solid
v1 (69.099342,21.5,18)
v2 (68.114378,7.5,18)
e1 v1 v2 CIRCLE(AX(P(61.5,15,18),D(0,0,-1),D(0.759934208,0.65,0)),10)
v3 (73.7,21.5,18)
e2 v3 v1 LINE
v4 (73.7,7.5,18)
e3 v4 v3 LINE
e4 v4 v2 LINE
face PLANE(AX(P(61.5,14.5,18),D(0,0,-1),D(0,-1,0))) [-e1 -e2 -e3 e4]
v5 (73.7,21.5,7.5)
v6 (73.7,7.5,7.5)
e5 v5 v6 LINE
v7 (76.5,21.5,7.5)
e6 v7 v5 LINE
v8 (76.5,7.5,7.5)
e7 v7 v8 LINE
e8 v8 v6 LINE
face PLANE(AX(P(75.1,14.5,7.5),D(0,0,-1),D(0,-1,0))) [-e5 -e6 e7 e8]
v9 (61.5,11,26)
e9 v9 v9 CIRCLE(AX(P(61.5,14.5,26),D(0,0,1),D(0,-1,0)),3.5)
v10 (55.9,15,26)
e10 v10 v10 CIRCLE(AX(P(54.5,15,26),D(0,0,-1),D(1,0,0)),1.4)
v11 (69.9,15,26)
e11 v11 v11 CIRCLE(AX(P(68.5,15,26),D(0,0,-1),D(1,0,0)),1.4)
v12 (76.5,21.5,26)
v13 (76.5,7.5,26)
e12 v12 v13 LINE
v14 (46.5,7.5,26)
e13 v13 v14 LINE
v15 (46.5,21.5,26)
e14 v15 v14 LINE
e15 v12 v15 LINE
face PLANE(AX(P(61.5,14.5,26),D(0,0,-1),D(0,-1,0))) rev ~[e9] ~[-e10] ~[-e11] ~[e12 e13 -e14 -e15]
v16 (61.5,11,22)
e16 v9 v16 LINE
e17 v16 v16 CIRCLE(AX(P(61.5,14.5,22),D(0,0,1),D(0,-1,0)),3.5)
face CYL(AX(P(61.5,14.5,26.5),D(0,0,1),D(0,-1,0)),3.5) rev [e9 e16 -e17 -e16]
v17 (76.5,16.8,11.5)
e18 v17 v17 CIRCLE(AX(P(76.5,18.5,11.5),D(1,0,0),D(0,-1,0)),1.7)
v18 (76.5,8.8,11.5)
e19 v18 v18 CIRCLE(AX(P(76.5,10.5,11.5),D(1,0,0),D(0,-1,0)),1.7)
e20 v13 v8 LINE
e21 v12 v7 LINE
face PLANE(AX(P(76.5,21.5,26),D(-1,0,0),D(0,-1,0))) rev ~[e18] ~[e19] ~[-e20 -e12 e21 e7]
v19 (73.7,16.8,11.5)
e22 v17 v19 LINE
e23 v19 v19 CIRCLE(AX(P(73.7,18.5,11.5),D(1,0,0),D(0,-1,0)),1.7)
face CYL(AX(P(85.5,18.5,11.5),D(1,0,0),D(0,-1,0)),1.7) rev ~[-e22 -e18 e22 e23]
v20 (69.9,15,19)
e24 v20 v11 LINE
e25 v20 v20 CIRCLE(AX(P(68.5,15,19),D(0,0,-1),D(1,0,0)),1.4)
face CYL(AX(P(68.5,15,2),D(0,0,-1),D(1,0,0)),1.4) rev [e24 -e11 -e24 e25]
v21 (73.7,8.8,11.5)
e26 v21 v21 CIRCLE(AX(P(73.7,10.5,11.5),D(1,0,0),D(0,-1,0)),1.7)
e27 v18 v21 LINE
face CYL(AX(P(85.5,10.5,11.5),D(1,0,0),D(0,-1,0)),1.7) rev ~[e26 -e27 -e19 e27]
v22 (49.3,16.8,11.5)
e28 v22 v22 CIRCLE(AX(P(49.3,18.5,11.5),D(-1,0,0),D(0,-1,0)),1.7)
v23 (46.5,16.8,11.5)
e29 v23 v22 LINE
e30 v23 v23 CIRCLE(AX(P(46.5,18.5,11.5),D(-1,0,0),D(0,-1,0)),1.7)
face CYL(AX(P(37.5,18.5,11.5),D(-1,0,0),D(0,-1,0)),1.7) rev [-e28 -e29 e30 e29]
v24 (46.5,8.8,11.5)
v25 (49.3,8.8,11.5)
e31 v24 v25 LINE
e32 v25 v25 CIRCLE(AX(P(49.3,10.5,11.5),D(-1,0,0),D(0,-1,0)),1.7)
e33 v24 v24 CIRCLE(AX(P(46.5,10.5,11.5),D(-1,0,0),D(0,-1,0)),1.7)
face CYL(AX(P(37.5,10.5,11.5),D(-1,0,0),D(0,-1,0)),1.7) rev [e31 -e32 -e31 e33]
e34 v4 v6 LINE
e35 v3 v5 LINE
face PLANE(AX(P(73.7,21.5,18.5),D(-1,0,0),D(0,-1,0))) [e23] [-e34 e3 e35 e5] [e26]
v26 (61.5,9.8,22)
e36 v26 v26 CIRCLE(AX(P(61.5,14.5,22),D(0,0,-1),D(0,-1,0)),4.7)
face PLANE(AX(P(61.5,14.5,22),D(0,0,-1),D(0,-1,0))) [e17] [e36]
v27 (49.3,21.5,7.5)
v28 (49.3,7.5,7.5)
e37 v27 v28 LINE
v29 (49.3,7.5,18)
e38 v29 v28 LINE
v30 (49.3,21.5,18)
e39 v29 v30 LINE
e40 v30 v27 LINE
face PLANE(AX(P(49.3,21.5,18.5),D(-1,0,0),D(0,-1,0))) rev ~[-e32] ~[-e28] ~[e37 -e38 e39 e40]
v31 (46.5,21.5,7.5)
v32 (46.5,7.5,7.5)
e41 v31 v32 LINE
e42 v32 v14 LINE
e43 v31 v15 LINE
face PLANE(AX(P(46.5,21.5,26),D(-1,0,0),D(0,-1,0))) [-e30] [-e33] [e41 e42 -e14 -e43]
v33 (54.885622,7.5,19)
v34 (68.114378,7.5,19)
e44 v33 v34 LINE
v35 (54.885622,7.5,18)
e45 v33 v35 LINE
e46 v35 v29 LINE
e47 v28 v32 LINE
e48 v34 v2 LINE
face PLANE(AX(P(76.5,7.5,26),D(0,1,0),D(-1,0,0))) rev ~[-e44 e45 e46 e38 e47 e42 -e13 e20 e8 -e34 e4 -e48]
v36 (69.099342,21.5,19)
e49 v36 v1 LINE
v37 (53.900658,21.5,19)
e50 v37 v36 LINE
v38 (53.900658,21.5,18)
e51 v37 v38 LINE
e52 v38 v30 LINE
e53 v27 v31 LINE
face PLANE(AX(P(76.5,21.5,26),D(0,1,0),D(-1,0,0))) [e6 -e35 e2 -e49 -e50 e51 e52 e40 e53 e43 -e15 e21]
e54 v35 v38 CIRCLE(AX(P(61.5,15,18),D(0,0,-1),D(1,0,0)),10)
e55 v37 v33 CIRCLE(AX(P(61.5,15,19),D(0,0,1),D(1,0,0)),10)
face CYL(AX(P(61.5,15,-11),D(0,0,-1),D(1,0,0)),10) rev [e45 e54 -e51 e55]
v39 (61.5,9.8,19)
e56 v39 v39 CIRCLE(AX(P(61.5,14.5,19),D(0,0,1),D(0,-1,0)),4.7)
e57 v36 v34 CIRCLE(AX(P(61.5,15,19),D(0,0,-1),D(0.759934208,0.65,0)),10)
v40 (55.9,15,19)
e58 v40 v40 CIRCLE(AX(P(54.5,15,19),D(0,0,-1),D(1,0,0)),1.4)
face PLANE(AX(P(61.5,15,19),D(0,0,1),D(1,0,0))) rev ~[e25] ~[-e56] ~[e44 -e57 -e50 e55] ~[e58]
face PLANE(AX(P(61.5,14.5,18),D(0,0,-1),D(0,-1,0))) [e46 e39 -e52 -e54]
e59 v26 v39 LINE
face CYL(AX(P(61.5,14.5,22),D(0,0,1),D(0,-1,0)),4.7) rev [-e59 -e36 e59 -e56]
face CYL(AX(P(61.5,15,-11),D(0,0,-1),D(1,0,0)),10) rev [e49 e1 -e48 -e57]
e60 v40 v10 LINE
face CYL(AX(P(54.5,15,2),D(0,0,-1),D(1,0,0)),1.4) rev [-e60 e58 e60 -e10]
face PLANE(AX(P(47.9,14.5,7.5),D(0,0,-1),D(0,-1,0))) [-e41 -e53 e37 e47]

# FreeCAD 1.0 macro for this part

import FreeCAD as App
import Part
import Sketcher

doc = App.newDocument("Part")
body = doc.addObject("PartDesign::Body", "Body")

sketch1 = doc.addObject("Sketcher::SketchObject", "Sketch")
body.addObject(sketch1)
sketch1.AttachmentSupport = (doc.XY_Plane, [""])
sketch1.MapMode = "FlatFace"
sketch1.AttachmentOffset = App.Placement(App.Vector(0, 0, -11), App.Rotation())
sketch1.addGeometry(Part.Circle(App.Vector(61.5, 15, 0), App.Vector(0, 0, 1), 10), False)
sketch1.addConstraint(Sketcher.Constraint("Diameter", 0, 20.0))
sketch1.addConstraint(Sketcher.Constraint("DistanceY", -1, 1, 0, 3, 15.0))
sketch1.addConstraint(Sketcher.Constraint("DistanceX", -1, 1, 0, 3, 61.5))
pad1 = doc.addObject("PartDesign::Pad", "Pad")
body.addObject(pad1)
pad1.Profile = sketch1
pad1.Length = 30
body2 = doc.addObject("PartDesign::Body", "Body001")

sketch2 = doc.addObject("Sketcher::SketchObject", "Sketch001")
body2.addObject(sketch2)
sketch2.AttachmentSupport = (doc.getObject("XY_Plane001"), [""])
sketch2.MapMode = "FlatFace"
sketch2.AttachmentOffset = App.Placement(App.Vector(0, 0, -9), App.Rotation())
sketch2.addGeometry(Part.Circle(App.Vector(0, 0, 0), App.Vector(0, 0, 1), 3.5), False)
sketch2.addConstraint(Sketcher.Constraint("Coincident", 0, 3, -1, 1))
sketch2.addConstraint(Sketcher.Constraint("Diameter", 0, 7.0))
pad2 = doc.addObject("PartDesign::Pad", "Pad001")
body2.addObject(pad2)
pad2.Profile = sketch2
pad2.Length = 30
body3 = doc.addObject("PartDesign::Body", "Body002")

sketch3 = doc.addObject("Sketcher::SketchObject", "Sketch002")
body3.addObject(sketch3)
sketch3.AttachmentSupport = (doc.getObject("XY_Plane002"), [""])
sketch3.MapMode = "FlatFace"
sketch3.AttachmentOffset = App.Placement(App.Vector(0, 0, -4.5), App.Rotation())
sketch3.addGeometry(Part.Circle(App.Vector(0, 0, 0), App.Vector(0, 0, 1), 4.7), False)
sketch3.addConstraint(Sketcher.Constraint("Coincident", 0, 3, -1, 1))
sketch3.addConstraint(Sketcher.Constraint("Diameter", 0, 9.4))
pad3 = doc.addObject("PartDesign::Pad", "Pad002")
body3.addObject(pad3)
pad3.Profile = sketch3
pad3.Length = 30
doc.recompute()

boolean = doc.addObject("PartDesign::Boolean", "Boolean")
body3.addObject(boolean)
boolean.Type = "Fuse"
boolean.addObjects([body2])
body4 = doc.addObject("PartDesign::Body", "Body003")
doc.recompute()

body3.Placement = App.Placement(App.Vector(0, 0, 0), App.Rotation(App.Vector(1, 0, 0), 180))
boolean2 = doc.addObject("PartDesign::Boolean", "Boolean001")
body4.addObject(boolean2)
boolean2.Type = "Fuse"
boolean2.addObjects([body3])
body5 = doc.addObject("PartDesign::Body", "Body004")
doc.recompute()

body4.Placement = App.Placement(App.Vector(61.5, 14.5, 17.5), App.Rotation(App.Vector(0, 0, 1), 270))
boolean3 = doc.addObject("PartDesign::Boolean", "Boolean002")
body5.addObject(boolean3)
boolean3.Type = "Fuse"
boolean3.addObjects([body4])
body6 = doc.addObject("PartDesign::Body", "Body005")

sketch4 = doc.addObject("Sketcher::SketchObject", "Sketch003")
body6.addObject(sketch4)
sketch4.AttachmentSupport = (doc.getObject("XY_Plane005"), [""])
sketch4.MapMode = "FlatFace"
sketch4.AttachmentOffset = App.Placement(App.Vector(0, 0, 2), App.Rotation())
sketch4.addGeometry(Part.Circle(App.Vector(68.5, 15, 0), App.Vector(0, 0, 1), 1.4), False)
sketch4.addConstraint(Sketcher.Constraint("Diameter", 0, 2.8))
sketch4.addConstraint(Sketcher.Constraint("DistanceY", -1, 1, 0, 3, 15.0))
sketch4.addConstraint(Sketcher.Constraint("DistanceX", -1, 1, 0, 3, 68.5))
pad4 = doc.addObject("PartDesign::Pad", "Pad003")
body6.addObject(pad4)
pad4.Profile = sketch4
pad4.Length = 50
body7 = doc.addObject("PartDesign::Body", "Body006")
body7.AllowCompound = True

sketch5 = doc.addObject("Sketcher::SketchObject", "Sketch004")
body7.addObject(sketch5)
sketch5.AttachmentSupport = (doc.getObject("XY_Plane006"), [""])
sketch5.MapMode = "FlatFace"
sketch5.AttachmentOffset = App.Placement(App.Vector(0, 0, 2), App.Rotation())
sketch5.addGeometry(Part.Circle(App.Vector(54.5, 15, 0), App.Vector(0, 0, 1), 1.4), False)
sketch5.addConstraint(Sketcher.Constraint("Diameter", 0, 2.8))
sketch5.addConstraint(Sketcher.Constraint("DistanceY", -1, 1, 0, 3, 15.0))
sketch5.addConstraint(Sketcher.Constraint("DistanceX", -1, 1, 0, 3, 54.5))
pad5 = doc.addObject("PartDesign::Pad", "Pad004")
body7.addObject(pad5)
pad5.Profile = sketch5
pad5.Length = 50
doc.recompute()

boolean4 = doc.addObject("PartDesign::Boolean", "Boolean003")
body7.addObject(boolean4)
boolean4.Type = "Fuse"
boolean4.addObjects([body6])
body8 = doc.addObject("PartDesign::Body", "Body007")

sketch6 = doc.addObject("Sketcher::SketchObject", "Sketch005")
body8.addObject(sketch6)
sketch6.AttachmentSupport = (doc.getObject("XY_Plane007"), [""])
sketch6.MapMode = "FlatFace"
sketch6.addGeometry(Part.Circle(App.Vector(0, 0, 0), App.Vector(0, 0, 1), 1.7), False)
sketch6.addConstraint(Sketcher.Constraint("Coincident", 0, 3, -1, 1))
sketch6.addConstraint(Sketcher.Constraint("Diameter", 0, 3.4))
pad6 = doc.addObject("PartDesign::Pad", "Pad005")
body8.addObject(pad6)
pad6.Profile = sketch6
pad6.Length = 19
body9 = doc.addObject("PartDesign::Body", "Body008")
doc.recompute()

body8.Placement = App.Placement(App.Vector(0, 0, 0), App.Rotation(App.Vector(1, 0, 0), 90))
boolean5 = doc.addObject("PartDesign::Boolean", "Boolean004")
body9.addObject(boolean5)
boolean5.Type = "Fuse"
boolean5.addObjects([body8])
body10 = doc.addObject("PartDesign::Body", "Body009")
doc.recompute()

body9.Placement = App.Placement(App.Vector(4, 24, 6), App.Rotation(App.Vector(0, 0, 1), 0))
boolean6 = doc.addObject("PartDesign::Boolean", "Boolean005")
body10.addObject(boolean6)
boolean6.Type = "Fuse"
boolean6.addObjects([body9])
body11 = doc.addObject("PartDesign::Body", "Body010")

sketch7 = doc.addObject("Sketcher::SketchObject", "Sketch006")
body11.addObject(sketch7)
sketch7.AttachmentSupport = (doc.getObject("XY_Plane010"), [""])
sketch7.MapMode = "FlatFace"
sketch7.addGeometry(Part.Circle(App.Vector(0, 0, 0), App.Vector(0, 0, 1), 1.7), False)
sketch7.addConstraint(Sketcher.Constraint("Coincident", 0, 3, -1, 1))
sketch7.addConstraint(Sketcher.Constraint("Diameter", 0, 3.4))
pad7 = doc.addObject("PartDesign::Pad", "Pad006")
body11.addObject(pad7)
pad7.Profile = sketch7
pad7.Length = 19
body12 = doc.addObject("PartDesign::Body", "Body011")
doc.recompute()

body11.Placement = App.Placement(App.Vector(0, 0, 0), App.Rotation(App.Vector(1, 0, 0), 90))
boolean7 = doc.addObject("PartDesign::Boolean", "Boolean006")
body12.addObject(boolean7)
boolean7.Type = "Fuse"
boolean7.addObjects([body11])
body13 = doc.addObject("PartDesign::Body", "Body012")
doc.recompute()

body12.Placement = App.Placement(App.Vector(4, 24, 6), App.Rotation(App.Vector(0, 0, 1), 0))
boolean8 = doc.addObject("PartDesign::Boolean", "Boolean007")
body13.addObject(boolean8)
boolean8.Type = "Fuse"
boolean8.addObjects([body12])
body14 = doc.addObject("PartDesign::Body", "Body013")
doc.recompute()

mirroring = doc.addObject("Part::Mirroring", "Mirroring")
mirroring.Source = body13
mirroring.Base = App.Vector(0, 0, 0)
mirroring.Normal = App.Vector(0, 1, 0)
body14.BaseFeature = mirroring
doc.recompute()
body15 = doc.addObject("PartDesign::Body", "Body014")

sketch8 = doc.addObject("Sketcher::SketchObject", "Sketch007")
body15.addObject(sketch8)
sketch8.AttachmentSupport = (doc.getObject("XY_Plane014"), [""])
sketch8.MapMode = "FlatFace"
sketch8.addGeometry(Part.Circle(App.Vector(0, 0, 0), App.Vector(0, 0, 1), 1.7), False)
sketch8.addConstraint(Sketcher.Constraint("Coincident", 0, 3, -1, 1))
sketch8.addConstraint(Sketcher.Constraint("Diameter", 0, 3.4))
pad8 = doc.addObject("PartDesign::Pad", "Pad007")
body15.addObject(pad8)
pad8.Profile = sketch8
pad8.Length = 19
body16 = doc.addObject("PartDesign::Body", "Body015")
doc.recompute()

body15.Placement = App.Placement(App.Vector(0, 0, 0), App.Rotation(App.Vector(1, 0, 0), 90))
boolean9 = doc.addObject("PartDesign::Boolean", "Boolean008")
body16.addObject(boolean9)
boolean9.Type = "Fuse"
boolean9.addObjects([body15])
body17 = doc.addObject("PartDesign::Body", "Body016")
doc.recompute()

body16.Placement = App.Placement(App.Vector(-4, 24, 6), App.Rotation(App.Vector(0, 0, 1), 0))
boolean10 = doc.addObject("PartDesign::Boolean", "Boolean009")
body17.addObject(boolean10)
boolean10.Type = "Fuse"
boolean10.addObjects([body16])
body18 = doc.addObject("PartDesign::Body", "Body017")
doc.recompute()

mirroring2 = doc.addObject("Part::Mirroring", "Mirroring001")
mirroring2.Source = body17
mirroring2.Base = App.Vector(0, 0, 0)
mirroring2.Normal = App.Vector(0, 1, 0)
body18.BaseFeature = mirroring2
doc.recompute()
body19 = doc.addObject("PartDesign::Body", "Body018")

sketch9 = doc.addObject("Sketcher::SketchObject", "Sketch008")
body19.addObject(sketch9)
sketch9.AttachmentSupport = (doc.getObject("XY_Plane018"), [""])
sketch9.MapMode = "FlatFace"
sketch9.addGeometry(Part.Circle(App.Vector(0, 0, 0), App.Vector(0, 0, 1), 1.7), False)
sketch9.addConstraint(Sketcher.Constraint("Coincident", 0, 3, -1, 1))
sketch9.addConstraint(Sketcher.Constraint("Diameter", 0, 3.4))
pad9 = doc.addObject("PartDesign::Pad", "Pad008")
body19.addObject(pad9)
pad9.Profile = sketch9
pad9.Length = 19
body20 = doc.addObject("PartDesign::Body", "Body019")
doc.recompute()

body19.Placement = App.Placement(App.Vector(0, 0, 0), App.Rotation(App.Vector(1, 0, 0), 90))
boolean11 = doc.addObject("PartDesign::Boolean", "Boolean010")
body20.addObject(boolean11)
boolean11.Type = "Fuse"
boolean11.addObjects([body19])
body21 = doc.addObject("PartDesign::Body", "Body020")
body21.AllowCompound = True
doc.recompute()

body20.Placement = App.Placement(App.Vector(-4, 24, 6), App.Rotation(App.Vector(0, 0, 1), 0))
boolean12 = doc.addObject("PartDesign::Boolean", "Boolean011")
body21.addObject(boolean12)
boolean12.Type = "Fuse"
boolean12.addObjects([body20])
doc.recompute()

boolean13 = doc.addObject("PartDesign::Boolean", "Boolean012")
body21.addObject(boolean13)
boolean13.Type = "Fuse"
boolean13.addObjects([body10])
doc.recompute()

boolean14 = doc.addObject("PartDesign::Boolean", "Boolean013")
body21.addObject(boolean14)
boolean14.Type = "Fuse"
boolean14.addObjects([body14])
doc.recompute()

boolean15 = doc.addObject("PartDesign::Boolean", "Boolean014")
body21.addObject(boolean15)
boolean15.Type = "Fuse"
boolean15.addObjects([body18])
body22 = doc.addObject("PartDesign::Body", "Body021")

sketch10 = doc.addObject("Sketcher::SketchObject", "Sketch009")
body22.addObject(sketch10)
sketch10.AttachmentSupport = (doc.getObject("XY_Plane021"), [""])
sketch10.MapMode = "FlatFace"
sketch10.AttachmentOffset = App.Placement(App.Vector(0, 0, -1), App.Rotation())
sketch10.addGeometry(Part.LineSegment(App.Vector(-7, 15, 0), App.Vector(-7, 12.2, 0)), False)
sketch10.addGeometry(Part.LineSegment(App.Vector(-7, 12.2, 0), App.Vector(7, 12.2, 0)), False)
sketch10.addGeometry(Part.LineSegment(App.Vector(7, 12.2, 0), App.Vector(7, 15, 0)), False)
sketch10.addGeometry(Part.LineSegment(App.Vector(7, 15, 0), App.Vector(-7, 15, 0)), False)
sketch10.addConstraint(Sketcher.Constraint("Coincident", 0, 2, 1, 1))
sketch10.addConstraint(Sketcher.Constraint("Coincident", 1, 2, 2, 1))
sketch10.addConstraint(Sketcher.Constraint("Coincident", 2, 2, 3, 1))
sketch10.addConstraint(Sketcher.Constraint("Coincident", 3, 2, 0, 1))
sketch10.addConstraint(Sketcher.Constraint("Vertical", 0))
sketch10.addConstraint(Sketcher.Constraint("Horizontal", 1))
sketch10.addConstraint(Sketcher.Constraint("Vertical", 2))
sketch10.addConstraint(Sketcher.Constraint("Horizontal", 3))
sketch10.addConstraint(Sketcher.Constraint("DistanceX", 1, 1, 1, 2, 14.0))
sketch10.addConstraint(Sketcher.Constraint("DistanceY", 0, 2, 0, 1, 2.8))
sketch10.addConstraint(Sketcher.Constraint("DistanceX", 0, 2, -1, 1, 7.0))
sketch10.addConstraint(Sketcher.Constraint("DistanceY", -1, 1, 2, 2, 15.0))
pad10 = doc.addObject("PartDesign::Pad", "Pad009")
body22.addObject(pad10)
pad10.Profile = sketch10
pad10.Length = 11
body23 = doc.addObject("PartDesign::Body", "Body022")

sketch11 = doc.addObject("Sketcher::SketchObject", "Sketch010")
body23.addObject(sketch11)
sketch11.AttachmentSupport = (doc.getObject("XY_Plane022"), [""])
sketch11.MapMode = "FlatFace"
sketch11.AttachmentOffset = App.Placement(App.Vector(0, 0, -1), App.Rotation())
sketch11.addGeometry(Part.LineSegment(App.Vector(-7, -12.2, 0), App.Vector(-7, -15, 0)), False)
sketch11.addGeometry(Part.LineSegment(App.Vector(-7, -15, 0), App.Vector(7, -15, 0)), False)
sketch11.addGeometry(Part.LineSegment(App.Vector(7, -15, 0), App.Vector(7, -12.2, 0)), False)
sketch11.addGeometry(Part.LineSegment(App.Vector(7, -12.2, 0), App.Vector(-7, -12.2, 0)), False)
sketch11.addConstraint(Sketcher.Constraint("Coincident", 0, 2, 1, 1))
sketch11.addConstraint(Sketcher.Constraint("Coincident", 1, 2, 2, 1))
sketch11.addConstraint(Sketcher.Constraint("Coincident", 2, 2, 3, 1))
sketch11.addConstraint(Sketcher.Constraint("Coincident", 3, 2, 0, 1))
sketch11.addConstraint(Sketcher.Constraint("Vertical", 0))
sketch11.addConstraint(Sketcher.Constraint("Horizontal", 1))
sketch11.addConstraint(Sketcher.Constraint("Vertical", 2))
sketch11.addConstraint(Sketcher.Constraint("Horizontal", 3))
sketch11.addConstraint(Sketcher.Constraint("DistanceX", 1, 1, 1, 2, 14.0))
sketch11.addConstraint(Sketcher.Constraint("DistanceY", 0, 2, 0, 1, 2.8))
sketch11.addConstraint(Sketcher.Constraint("DistanceX", 0, 2, -1, 1, 7.0))
sketch11.addConstraint(Sketcher.Constraint("DistanceY", 0, 2, -1, 1, 15.0))
pad11 = doc.addObject("PartDesign::Pad", "Pad010")
body23.addObject(pad11)
pad11.Profile = sketch11
pad11.Length = 11
body24 = doc.addObject("PartDesign::Body", "Body023")

sketch12 = doc.addObject("Sketcher::SketchObject", "Sketch011")
body24.addObject(sketch12)
sketch12.AttachmentSupport = (doc.getObject("XY_Plane023"), [""])
sketch12.MapMode = "FlatFace"
sketch12.AttachmentOffset = App.Placement(App.Vector(0, 0, -8.5), App.Rotation())
sketch12.addGeometry(Part.LineSegment(App.Vector(-7, 15, 0), App.Vector(-7, -15, 0)), False)
sketch12.addGeometry(Part.LineSegment(App.Vector(-7, -15, 0), App.Vector(7, -15, 0)), False)
sketch12.addGeometry(Part.LineSegment(App.Vector(7, -15, 0), App.Vector(7, 15, 0)), False)
sketch12.addGeometry(Part.LineSegment(App.Vector(7, 15, 0), App.Vector(-7, 15, 0)), False)
sketch12.addConstraint(Sketcher.Constraint("Coincident", 0, 2, 1, 1))
sketch12.addConstraint(Sketcher.Constraint("Coincident", 1, 2, 2, 1))
sketch12.addConstraint(Sketcher.Constraint("Coincident", 2, 2, 3, 1))
sketch12.addConstraint(Sketcher.Constraint("Coincident", 3, 2, 0, 1))
sketch12.addConstraint(Sketcher.Constraint("Vertical", 0))
sketch12.addConstraint(Sketcher.Constraint("Horizontal", 1))
sketch12.addConstraint(Sketcher.Constraint("Vertical", 2))
sketch12.addConstraint(Sketcher.Constraint("Horizontal", 3))
sketch12.addConstraint(Sketcher.Constraint("Symmetric", 0, 2, 2, 2, -1, 1))
sketch12.addConstraint(Sketcher.Constraint("DistanceX", 1, 1, 1, 2, 14.0))
sketch12.addConstraint(Sketcher.Constraint("DistanceY", 0, 2, 0, 1, 30.0))
pad12 = doc.addObject("PartDesign::Pad", "Pad011")
body24.addObject(pad12)
pad12.Profile = sketch12
pad12.Length = 8
doc.recompute()

boolean16 = doc.addObject("PartDesign::Boolean", "Boolean015")
body24.addObject(boolean16)
boolean16.Type = "Fuse"
boolean16.addObjects([body22])
doc.recompute()

boolean17 = doc.addObject("PartDesign::Boolean", "Boolean016")
body24.addObject(boolean17)
boolean17.Type = "Fuse"
boolean17.addObjects([body23])
doc.recompute()

boolean18 = doc.addObject("PartDesign::Boolean", "Boolean017")
body24.addObject(boolean18)
boolean18.Type = "Cut"
boolean18.addObjects([body21])
body25 = doc.addObject("PartDesign::Body", "Body024")
doc.recompute()

body24.Placement = App.Placement(App.Vector(0, 0, 0), App.Rotation(App.Vector(1, 0, 0), 180))
boolean19 = doc.addObject("PartDesign::Boolean", "Boolean018")
body25.addObject(boolean19)
boolean19.Type = "Fuse"
boolean19.addObjects([body24])
body26 = doc.addObject("PartDesign::Body", "Body025")
doc.recompute()

body25.Placement = App.Placement(App.Vector(61.5, 14.5, 17.5), App.Rotation(App.Vector(0, 0, 1), 270))
boolean20 = doc.addObject("PartDesign::Boolean", "Boolean019")
body26.addObject(boolean20)
boolean20.Type = "Fuse"
boolean20.addObjects([body25])
doc.recompute()

boolean21 = doc.addObject("PartDesign::Boolean", "Boolean020")
body26.addObject(boolean21)
boolean21.Type = "Cut"
boolean21.addObjects([body7])
doc.recompute()

boolean22 = doc.addObject("PartDesign::Boolean", "Boolean021")
body26.addObject(boolean22)
boolean22.Type = "Cut"
boolean22.addObjects([body5])
doc.recompute()

boolean23 = doc.addObject("PartDesign::Boolean", "Boolean022")
body26.addObject(boolean23)
boolean23.Type = "Cut"
boolean23.addObjects([body])
mirroring.Visibility = False
mirroring2.Visibility = False

doc.recompute()
